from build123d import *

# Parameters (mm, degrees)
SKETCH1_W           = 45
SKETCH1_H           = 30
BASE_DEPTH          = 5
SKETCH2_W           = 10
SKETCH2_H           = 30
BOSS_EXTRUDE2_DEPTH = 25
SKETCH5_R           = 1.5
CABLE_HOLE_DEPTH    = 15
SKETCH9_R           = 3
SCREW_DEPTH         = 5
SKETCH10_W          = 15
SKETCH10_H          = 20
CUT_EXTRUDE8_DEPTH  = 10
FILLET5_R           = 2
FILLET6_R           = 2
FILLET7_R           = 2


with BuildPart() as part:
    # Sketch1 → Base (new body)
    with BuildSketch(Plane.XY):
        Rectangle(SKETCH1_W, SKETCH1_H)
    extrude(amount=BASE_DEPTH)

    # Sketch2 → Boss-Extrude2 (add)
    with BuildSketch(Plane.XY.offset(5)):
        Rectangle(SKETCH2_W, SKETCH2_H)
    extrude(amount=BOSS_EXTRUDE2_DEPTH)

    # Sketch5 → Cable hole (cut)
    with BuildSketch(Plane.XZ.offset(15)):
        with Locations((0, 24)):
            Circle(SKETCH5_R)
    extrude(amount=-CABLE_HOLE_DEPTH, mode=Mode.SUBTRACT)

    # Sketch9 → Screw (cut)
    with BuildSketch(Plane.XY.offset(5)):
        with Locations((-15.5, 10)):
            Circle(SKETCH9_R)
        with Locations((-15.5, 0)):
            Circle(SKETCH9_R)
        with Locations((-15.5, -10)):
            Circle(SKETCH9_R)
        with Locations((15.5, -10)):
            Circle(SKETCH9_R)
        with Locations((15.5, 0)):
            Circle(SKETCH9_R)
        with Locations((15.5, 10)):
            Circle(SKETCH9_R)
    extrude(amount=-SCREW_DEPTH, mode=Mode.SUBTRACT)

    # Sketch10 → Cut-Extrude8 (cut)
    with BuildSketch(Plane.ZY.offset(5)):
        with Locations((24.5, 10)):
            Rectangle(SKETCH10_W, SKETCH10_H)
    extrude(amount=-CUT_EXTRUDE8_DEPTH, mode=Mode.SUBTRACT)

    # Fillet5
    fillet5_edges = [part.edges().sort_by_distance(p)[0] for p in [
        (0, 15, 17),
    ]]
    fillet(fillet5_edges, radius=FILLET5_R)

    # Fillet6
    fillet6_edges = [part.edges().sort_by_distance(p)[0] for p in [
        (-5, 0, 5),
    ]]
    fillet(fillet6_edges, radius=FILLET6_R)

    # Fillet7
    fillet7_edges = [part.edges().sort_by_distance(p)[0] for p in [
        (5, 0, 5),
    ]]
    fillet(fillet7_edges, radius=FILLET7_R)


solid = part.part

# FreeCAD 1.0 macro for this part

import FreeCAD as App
import Part
import Sketcher

V = App.Vector


def edges_at(feature, points):
    """Names of the edges that pass closest to the given points."""
    edges = feature.Shape.Edges
    near = lambda p: min(range(len(edges)), key=lambda i: edges[i].distToShape(Part.Vertex(*p))[0])
    return sorted({f"Edge{near(p) + 1}" for p in points})


def add_polygon(sketch, points):
    """Adds a closed chain of lines whose ends are joined by coincident constraints."""
    first, n = sketch.GeometryCount, len(points)
    for a, b in zip(points, points[1:] + points[:1]):
        sketch.addGeometry(Part.LineSegment(App.Vector(*a, 0), App.Vector(*b, 0)), False)
    for i in range(n):
        sketch.addConstraint(Sketcher.Constraint("Coincident", first + i, 2, first + (i + 1) % n, 1))

doc = App.newDocument("Part")
body = doc.addObject("PartDesign::Body", "Body")

# Sketch on XY plane
sketch1 = doc.addObject("Sketcher::SketchObject", "Sketch")
body.addObject(sketch1)
sketch1.AttachmentSupport = (doc.XY_Plane, [""])
sketch1.MapMode = "FlatFace"
add_polygon(sketch1, [(-22, 15), (-22, -15), (22, -15), (22, 15)])  # lines 0-3
sketch1.addConstraint([
    Sketcher.Constraint("Vertical", 0),
    Sketcher.Constraint("Horizontal", 1),
    Sketcher.Constraint("Vertical", 2),
    Sketcher.Constraint("Horizontal", 3),
    Sketcher.Constraint("Symmetric", 0, 2, 2, 2, -1, 1),
    Sketcher.Constraint("DistanceX", 1, 1, 1, 2, 45.0),
    Sketcher.Constraint("DistanceY", 0, 2, 0, 1, 30.0),
])
pad1 = doc.addObject("PartDesign::Pad", "Pad")
body.addObject(pad1)
pad1.Profile = sketch1
pad1.Length = 5

# Sketch on XY plane
sketch2 = doc.addObject("Sketcher::SketchObject", "Sketch001")
body.addObject(sketch2)
sketch2.AttachmentSupport = (doc.XY_Plane, [""])
sketch2.MapMode = "FlatFace"
sketch2.AttachmentOffset = App.Placement(V(0, 0, 5), App.Rotation())
add_polygon(sketch2, [(-5, 15), (-5, -15), (5, -15), (5, 15)])  # lines 0-3
sketch2.addConstraint([
    Sketcher.Constraint("Vertical", 0),
    Sketcher.Constraint("Horizontal", 1),
    Sketcher.Constraint("Vertical", 2),
    Sketcher.Constraint("Horizontal", 3),
    Sketcher.Constraint("Symmetric", 0, 2, 2, 2, -1, 1),
    Sketcher.Constraint("DistanceX", 1, 1, 1, 2, 10.0),
    Sketcher.Constraint("DistanceY", 0, 2, 0, 1, 30.0),
])
pad2 = doc.addObject("PartDesign::Pad", "Pad001")
body.addObject(pad2)
pad2.Profile = sketch2
pad2.Length = 25

# Sketch on XZ plane
sketch3 = doc.addObject("Sketcher::SketchObject", "Sketch002")
body.addObject(sketch3)
sketch3.AttachmentSupport = (doc.XZ_Plane, [""])
sketch3.MapMode = "FlatFace"
sketch3.AttachmentOffset = App.Placement(V(0, 0, 15), App.Rotation())
sketch3.addGeometry(Part.Circle(V(0, 24, 0), V(0, 0, 1), 1.5), False)
sketch3.addConstraint([
    Sketcher.Constraint("PointOnObject", 0, 3, -2),
    Sketcher.Constraint("Diameter", 0, 3.0),
    Sketcher.Constraint("DistanceY", -1, 1, 0, 3, 24.0),
])
pocket1 = doc.addObject("PartDesign::Pocket", "Pocket")
body.addObject(pocket1)
pocket1.Profile = sketch3
pocket1.Length = 15

# Sketch on XY plane
sketch4 = doc.addObject("Sketcher::SketchObject", "Sketch003")
body.addObject(sketch4)
sketch4.AttachmentSupport = (doc.XY_Plane, [""])
sketch4.MapMode = "FlatFace"
sketch4.AttachmentOffset = App.Placement(V(0, 0, 5), App.Rotation())
sketch4.addGeometry([
    Part.Circle(V(-15.5, 10, 0), V(0, 0, 1), 3),  # 0
    Part.Circle(V(-15.5, 0, 0), V(0, 0, 1), 3),  # 1
    Part.Circle(V(-15.5, -10, 0), V(0, 0, 1), 3),  # 2
    Part.Circle(V(15.5, -10, 0), V(0, 0, 1), 3),  # 3
    Part.Circle(V(15.5, 0, 0), V(0, 0, 1), 3),  # 4
    Part.Circle(V(15.5, 10, 0), V(0, 0, 1), 3),  # 5
], False)
sketch4.addConstraint([
    Sketcher.Constraint("Equal", 0, 1),
    Sketcher.Constraint("Equal", 1, 2),
    Sketcher.Constraint("Equal", 2, 3),
    Sketcher.Constraint("Equal", 3, 4),
    Sketcher.Constraint("Equal", 4, 5),
    Sketcher.Constraint("Symmetric", 0, 3, 3, 3, -1, 1),
    Sketcher.Constraint("Symmetric", 1, 3, 4, 3, -1, 1),
    Sketcher.Constraint("Symmetric", 2, 3, 5, 3, -1, 1),
    Sketcher.Constraint("Symmetric", 2, 3, 3, 3, -2),
    Sketcher.Constraint("PointOnObject", 1, 3, -1),
    Sketcher.Constraint("Vertical", 0, 3, 1, 3),
    Sketcher.Constraint("Diameter", 0, 6.0),
    Sketcher.Constraint("DistanceY", -1, 1, 0, 3, 10.0),
    Sketcher.Constraint("DistanceX", 2, 3, 3, 3, 31.0),
])
pocket2 = doc.addObject("PartDesign::Pocket", "Pocket001")
body.addObject(pocket2)
pocket2.Profile = sketch4
pocket2.Length = 5

# Sketch on YZ plane
sketch5 = doc.addObject("Sketcher::SketchObject", "Sketch004")
body.addObject(sketch5)
sketch5.AttachmentSupport = (doc.YZ_Plane, [""])
sketch5.MapMode = "FlatFace"
sketch5.AttachmentOffset = App.Placement(V(0, 0, -5), App.Rotation())
add_polygon(sketch5, [(20, 17), (0, 17), (0, 32), (20, 32)])  # lines 0-3
sketch5.addConstraint([
    Sketcher.Constraint("Horizontal", 0),
    Sketcher.Constraint("Vertical", 1),
    Sketcher.Constraint("Horizontal", 2),
    Sketcher.Constraint("Vertical", 3),
    Sketcher.Constraint("PointOnObject", 0, 2, -2),
    Sketcher.Constraint("DistanceX", 0, 2, 0, 1, 20.0),
    Sketcher.Constraint("DistanceY", 1, 1, 1, 2, 15.0),
    Sketcher.Constraint("DistanceY", -1, 1, 0, 2, 17.0),
])
pocket3 = doc.addObject("PartDesign::Pocket", "Pocket002")
body.addObject(pocket3)
pocket3.Profile = sketch5
pocket3.Length = 10
pocket3.Reversed = True
doc.recompute()

fillet = doc.addObject("PartDesign::Fillet", "Fillet")
body.addObject(fillet)
fillet.Base = (pocket3, edges_at(pocket3, [(0, 15, 17)]))
fillet.Radius = 2
doc.recompute()

fillet2 = doc.addObject("PartDesign::Fillet", "Fillet001")
body.addObject(fillet2)
fillet2.Base = (fillet, edges_at(fillet, [(-5, 0, 5)]))
fillet2.Radius = 2
doc.recompute()

fillet3 = doc.addObject("PartDesign::Fillet", "Fillet002")
body.addObject(fillet3)
fillet3.Base = (fillet2, edges_at(fillet2, [(5, 0, 5)]))
fillet3.Radius = 2

doc.recompute()
